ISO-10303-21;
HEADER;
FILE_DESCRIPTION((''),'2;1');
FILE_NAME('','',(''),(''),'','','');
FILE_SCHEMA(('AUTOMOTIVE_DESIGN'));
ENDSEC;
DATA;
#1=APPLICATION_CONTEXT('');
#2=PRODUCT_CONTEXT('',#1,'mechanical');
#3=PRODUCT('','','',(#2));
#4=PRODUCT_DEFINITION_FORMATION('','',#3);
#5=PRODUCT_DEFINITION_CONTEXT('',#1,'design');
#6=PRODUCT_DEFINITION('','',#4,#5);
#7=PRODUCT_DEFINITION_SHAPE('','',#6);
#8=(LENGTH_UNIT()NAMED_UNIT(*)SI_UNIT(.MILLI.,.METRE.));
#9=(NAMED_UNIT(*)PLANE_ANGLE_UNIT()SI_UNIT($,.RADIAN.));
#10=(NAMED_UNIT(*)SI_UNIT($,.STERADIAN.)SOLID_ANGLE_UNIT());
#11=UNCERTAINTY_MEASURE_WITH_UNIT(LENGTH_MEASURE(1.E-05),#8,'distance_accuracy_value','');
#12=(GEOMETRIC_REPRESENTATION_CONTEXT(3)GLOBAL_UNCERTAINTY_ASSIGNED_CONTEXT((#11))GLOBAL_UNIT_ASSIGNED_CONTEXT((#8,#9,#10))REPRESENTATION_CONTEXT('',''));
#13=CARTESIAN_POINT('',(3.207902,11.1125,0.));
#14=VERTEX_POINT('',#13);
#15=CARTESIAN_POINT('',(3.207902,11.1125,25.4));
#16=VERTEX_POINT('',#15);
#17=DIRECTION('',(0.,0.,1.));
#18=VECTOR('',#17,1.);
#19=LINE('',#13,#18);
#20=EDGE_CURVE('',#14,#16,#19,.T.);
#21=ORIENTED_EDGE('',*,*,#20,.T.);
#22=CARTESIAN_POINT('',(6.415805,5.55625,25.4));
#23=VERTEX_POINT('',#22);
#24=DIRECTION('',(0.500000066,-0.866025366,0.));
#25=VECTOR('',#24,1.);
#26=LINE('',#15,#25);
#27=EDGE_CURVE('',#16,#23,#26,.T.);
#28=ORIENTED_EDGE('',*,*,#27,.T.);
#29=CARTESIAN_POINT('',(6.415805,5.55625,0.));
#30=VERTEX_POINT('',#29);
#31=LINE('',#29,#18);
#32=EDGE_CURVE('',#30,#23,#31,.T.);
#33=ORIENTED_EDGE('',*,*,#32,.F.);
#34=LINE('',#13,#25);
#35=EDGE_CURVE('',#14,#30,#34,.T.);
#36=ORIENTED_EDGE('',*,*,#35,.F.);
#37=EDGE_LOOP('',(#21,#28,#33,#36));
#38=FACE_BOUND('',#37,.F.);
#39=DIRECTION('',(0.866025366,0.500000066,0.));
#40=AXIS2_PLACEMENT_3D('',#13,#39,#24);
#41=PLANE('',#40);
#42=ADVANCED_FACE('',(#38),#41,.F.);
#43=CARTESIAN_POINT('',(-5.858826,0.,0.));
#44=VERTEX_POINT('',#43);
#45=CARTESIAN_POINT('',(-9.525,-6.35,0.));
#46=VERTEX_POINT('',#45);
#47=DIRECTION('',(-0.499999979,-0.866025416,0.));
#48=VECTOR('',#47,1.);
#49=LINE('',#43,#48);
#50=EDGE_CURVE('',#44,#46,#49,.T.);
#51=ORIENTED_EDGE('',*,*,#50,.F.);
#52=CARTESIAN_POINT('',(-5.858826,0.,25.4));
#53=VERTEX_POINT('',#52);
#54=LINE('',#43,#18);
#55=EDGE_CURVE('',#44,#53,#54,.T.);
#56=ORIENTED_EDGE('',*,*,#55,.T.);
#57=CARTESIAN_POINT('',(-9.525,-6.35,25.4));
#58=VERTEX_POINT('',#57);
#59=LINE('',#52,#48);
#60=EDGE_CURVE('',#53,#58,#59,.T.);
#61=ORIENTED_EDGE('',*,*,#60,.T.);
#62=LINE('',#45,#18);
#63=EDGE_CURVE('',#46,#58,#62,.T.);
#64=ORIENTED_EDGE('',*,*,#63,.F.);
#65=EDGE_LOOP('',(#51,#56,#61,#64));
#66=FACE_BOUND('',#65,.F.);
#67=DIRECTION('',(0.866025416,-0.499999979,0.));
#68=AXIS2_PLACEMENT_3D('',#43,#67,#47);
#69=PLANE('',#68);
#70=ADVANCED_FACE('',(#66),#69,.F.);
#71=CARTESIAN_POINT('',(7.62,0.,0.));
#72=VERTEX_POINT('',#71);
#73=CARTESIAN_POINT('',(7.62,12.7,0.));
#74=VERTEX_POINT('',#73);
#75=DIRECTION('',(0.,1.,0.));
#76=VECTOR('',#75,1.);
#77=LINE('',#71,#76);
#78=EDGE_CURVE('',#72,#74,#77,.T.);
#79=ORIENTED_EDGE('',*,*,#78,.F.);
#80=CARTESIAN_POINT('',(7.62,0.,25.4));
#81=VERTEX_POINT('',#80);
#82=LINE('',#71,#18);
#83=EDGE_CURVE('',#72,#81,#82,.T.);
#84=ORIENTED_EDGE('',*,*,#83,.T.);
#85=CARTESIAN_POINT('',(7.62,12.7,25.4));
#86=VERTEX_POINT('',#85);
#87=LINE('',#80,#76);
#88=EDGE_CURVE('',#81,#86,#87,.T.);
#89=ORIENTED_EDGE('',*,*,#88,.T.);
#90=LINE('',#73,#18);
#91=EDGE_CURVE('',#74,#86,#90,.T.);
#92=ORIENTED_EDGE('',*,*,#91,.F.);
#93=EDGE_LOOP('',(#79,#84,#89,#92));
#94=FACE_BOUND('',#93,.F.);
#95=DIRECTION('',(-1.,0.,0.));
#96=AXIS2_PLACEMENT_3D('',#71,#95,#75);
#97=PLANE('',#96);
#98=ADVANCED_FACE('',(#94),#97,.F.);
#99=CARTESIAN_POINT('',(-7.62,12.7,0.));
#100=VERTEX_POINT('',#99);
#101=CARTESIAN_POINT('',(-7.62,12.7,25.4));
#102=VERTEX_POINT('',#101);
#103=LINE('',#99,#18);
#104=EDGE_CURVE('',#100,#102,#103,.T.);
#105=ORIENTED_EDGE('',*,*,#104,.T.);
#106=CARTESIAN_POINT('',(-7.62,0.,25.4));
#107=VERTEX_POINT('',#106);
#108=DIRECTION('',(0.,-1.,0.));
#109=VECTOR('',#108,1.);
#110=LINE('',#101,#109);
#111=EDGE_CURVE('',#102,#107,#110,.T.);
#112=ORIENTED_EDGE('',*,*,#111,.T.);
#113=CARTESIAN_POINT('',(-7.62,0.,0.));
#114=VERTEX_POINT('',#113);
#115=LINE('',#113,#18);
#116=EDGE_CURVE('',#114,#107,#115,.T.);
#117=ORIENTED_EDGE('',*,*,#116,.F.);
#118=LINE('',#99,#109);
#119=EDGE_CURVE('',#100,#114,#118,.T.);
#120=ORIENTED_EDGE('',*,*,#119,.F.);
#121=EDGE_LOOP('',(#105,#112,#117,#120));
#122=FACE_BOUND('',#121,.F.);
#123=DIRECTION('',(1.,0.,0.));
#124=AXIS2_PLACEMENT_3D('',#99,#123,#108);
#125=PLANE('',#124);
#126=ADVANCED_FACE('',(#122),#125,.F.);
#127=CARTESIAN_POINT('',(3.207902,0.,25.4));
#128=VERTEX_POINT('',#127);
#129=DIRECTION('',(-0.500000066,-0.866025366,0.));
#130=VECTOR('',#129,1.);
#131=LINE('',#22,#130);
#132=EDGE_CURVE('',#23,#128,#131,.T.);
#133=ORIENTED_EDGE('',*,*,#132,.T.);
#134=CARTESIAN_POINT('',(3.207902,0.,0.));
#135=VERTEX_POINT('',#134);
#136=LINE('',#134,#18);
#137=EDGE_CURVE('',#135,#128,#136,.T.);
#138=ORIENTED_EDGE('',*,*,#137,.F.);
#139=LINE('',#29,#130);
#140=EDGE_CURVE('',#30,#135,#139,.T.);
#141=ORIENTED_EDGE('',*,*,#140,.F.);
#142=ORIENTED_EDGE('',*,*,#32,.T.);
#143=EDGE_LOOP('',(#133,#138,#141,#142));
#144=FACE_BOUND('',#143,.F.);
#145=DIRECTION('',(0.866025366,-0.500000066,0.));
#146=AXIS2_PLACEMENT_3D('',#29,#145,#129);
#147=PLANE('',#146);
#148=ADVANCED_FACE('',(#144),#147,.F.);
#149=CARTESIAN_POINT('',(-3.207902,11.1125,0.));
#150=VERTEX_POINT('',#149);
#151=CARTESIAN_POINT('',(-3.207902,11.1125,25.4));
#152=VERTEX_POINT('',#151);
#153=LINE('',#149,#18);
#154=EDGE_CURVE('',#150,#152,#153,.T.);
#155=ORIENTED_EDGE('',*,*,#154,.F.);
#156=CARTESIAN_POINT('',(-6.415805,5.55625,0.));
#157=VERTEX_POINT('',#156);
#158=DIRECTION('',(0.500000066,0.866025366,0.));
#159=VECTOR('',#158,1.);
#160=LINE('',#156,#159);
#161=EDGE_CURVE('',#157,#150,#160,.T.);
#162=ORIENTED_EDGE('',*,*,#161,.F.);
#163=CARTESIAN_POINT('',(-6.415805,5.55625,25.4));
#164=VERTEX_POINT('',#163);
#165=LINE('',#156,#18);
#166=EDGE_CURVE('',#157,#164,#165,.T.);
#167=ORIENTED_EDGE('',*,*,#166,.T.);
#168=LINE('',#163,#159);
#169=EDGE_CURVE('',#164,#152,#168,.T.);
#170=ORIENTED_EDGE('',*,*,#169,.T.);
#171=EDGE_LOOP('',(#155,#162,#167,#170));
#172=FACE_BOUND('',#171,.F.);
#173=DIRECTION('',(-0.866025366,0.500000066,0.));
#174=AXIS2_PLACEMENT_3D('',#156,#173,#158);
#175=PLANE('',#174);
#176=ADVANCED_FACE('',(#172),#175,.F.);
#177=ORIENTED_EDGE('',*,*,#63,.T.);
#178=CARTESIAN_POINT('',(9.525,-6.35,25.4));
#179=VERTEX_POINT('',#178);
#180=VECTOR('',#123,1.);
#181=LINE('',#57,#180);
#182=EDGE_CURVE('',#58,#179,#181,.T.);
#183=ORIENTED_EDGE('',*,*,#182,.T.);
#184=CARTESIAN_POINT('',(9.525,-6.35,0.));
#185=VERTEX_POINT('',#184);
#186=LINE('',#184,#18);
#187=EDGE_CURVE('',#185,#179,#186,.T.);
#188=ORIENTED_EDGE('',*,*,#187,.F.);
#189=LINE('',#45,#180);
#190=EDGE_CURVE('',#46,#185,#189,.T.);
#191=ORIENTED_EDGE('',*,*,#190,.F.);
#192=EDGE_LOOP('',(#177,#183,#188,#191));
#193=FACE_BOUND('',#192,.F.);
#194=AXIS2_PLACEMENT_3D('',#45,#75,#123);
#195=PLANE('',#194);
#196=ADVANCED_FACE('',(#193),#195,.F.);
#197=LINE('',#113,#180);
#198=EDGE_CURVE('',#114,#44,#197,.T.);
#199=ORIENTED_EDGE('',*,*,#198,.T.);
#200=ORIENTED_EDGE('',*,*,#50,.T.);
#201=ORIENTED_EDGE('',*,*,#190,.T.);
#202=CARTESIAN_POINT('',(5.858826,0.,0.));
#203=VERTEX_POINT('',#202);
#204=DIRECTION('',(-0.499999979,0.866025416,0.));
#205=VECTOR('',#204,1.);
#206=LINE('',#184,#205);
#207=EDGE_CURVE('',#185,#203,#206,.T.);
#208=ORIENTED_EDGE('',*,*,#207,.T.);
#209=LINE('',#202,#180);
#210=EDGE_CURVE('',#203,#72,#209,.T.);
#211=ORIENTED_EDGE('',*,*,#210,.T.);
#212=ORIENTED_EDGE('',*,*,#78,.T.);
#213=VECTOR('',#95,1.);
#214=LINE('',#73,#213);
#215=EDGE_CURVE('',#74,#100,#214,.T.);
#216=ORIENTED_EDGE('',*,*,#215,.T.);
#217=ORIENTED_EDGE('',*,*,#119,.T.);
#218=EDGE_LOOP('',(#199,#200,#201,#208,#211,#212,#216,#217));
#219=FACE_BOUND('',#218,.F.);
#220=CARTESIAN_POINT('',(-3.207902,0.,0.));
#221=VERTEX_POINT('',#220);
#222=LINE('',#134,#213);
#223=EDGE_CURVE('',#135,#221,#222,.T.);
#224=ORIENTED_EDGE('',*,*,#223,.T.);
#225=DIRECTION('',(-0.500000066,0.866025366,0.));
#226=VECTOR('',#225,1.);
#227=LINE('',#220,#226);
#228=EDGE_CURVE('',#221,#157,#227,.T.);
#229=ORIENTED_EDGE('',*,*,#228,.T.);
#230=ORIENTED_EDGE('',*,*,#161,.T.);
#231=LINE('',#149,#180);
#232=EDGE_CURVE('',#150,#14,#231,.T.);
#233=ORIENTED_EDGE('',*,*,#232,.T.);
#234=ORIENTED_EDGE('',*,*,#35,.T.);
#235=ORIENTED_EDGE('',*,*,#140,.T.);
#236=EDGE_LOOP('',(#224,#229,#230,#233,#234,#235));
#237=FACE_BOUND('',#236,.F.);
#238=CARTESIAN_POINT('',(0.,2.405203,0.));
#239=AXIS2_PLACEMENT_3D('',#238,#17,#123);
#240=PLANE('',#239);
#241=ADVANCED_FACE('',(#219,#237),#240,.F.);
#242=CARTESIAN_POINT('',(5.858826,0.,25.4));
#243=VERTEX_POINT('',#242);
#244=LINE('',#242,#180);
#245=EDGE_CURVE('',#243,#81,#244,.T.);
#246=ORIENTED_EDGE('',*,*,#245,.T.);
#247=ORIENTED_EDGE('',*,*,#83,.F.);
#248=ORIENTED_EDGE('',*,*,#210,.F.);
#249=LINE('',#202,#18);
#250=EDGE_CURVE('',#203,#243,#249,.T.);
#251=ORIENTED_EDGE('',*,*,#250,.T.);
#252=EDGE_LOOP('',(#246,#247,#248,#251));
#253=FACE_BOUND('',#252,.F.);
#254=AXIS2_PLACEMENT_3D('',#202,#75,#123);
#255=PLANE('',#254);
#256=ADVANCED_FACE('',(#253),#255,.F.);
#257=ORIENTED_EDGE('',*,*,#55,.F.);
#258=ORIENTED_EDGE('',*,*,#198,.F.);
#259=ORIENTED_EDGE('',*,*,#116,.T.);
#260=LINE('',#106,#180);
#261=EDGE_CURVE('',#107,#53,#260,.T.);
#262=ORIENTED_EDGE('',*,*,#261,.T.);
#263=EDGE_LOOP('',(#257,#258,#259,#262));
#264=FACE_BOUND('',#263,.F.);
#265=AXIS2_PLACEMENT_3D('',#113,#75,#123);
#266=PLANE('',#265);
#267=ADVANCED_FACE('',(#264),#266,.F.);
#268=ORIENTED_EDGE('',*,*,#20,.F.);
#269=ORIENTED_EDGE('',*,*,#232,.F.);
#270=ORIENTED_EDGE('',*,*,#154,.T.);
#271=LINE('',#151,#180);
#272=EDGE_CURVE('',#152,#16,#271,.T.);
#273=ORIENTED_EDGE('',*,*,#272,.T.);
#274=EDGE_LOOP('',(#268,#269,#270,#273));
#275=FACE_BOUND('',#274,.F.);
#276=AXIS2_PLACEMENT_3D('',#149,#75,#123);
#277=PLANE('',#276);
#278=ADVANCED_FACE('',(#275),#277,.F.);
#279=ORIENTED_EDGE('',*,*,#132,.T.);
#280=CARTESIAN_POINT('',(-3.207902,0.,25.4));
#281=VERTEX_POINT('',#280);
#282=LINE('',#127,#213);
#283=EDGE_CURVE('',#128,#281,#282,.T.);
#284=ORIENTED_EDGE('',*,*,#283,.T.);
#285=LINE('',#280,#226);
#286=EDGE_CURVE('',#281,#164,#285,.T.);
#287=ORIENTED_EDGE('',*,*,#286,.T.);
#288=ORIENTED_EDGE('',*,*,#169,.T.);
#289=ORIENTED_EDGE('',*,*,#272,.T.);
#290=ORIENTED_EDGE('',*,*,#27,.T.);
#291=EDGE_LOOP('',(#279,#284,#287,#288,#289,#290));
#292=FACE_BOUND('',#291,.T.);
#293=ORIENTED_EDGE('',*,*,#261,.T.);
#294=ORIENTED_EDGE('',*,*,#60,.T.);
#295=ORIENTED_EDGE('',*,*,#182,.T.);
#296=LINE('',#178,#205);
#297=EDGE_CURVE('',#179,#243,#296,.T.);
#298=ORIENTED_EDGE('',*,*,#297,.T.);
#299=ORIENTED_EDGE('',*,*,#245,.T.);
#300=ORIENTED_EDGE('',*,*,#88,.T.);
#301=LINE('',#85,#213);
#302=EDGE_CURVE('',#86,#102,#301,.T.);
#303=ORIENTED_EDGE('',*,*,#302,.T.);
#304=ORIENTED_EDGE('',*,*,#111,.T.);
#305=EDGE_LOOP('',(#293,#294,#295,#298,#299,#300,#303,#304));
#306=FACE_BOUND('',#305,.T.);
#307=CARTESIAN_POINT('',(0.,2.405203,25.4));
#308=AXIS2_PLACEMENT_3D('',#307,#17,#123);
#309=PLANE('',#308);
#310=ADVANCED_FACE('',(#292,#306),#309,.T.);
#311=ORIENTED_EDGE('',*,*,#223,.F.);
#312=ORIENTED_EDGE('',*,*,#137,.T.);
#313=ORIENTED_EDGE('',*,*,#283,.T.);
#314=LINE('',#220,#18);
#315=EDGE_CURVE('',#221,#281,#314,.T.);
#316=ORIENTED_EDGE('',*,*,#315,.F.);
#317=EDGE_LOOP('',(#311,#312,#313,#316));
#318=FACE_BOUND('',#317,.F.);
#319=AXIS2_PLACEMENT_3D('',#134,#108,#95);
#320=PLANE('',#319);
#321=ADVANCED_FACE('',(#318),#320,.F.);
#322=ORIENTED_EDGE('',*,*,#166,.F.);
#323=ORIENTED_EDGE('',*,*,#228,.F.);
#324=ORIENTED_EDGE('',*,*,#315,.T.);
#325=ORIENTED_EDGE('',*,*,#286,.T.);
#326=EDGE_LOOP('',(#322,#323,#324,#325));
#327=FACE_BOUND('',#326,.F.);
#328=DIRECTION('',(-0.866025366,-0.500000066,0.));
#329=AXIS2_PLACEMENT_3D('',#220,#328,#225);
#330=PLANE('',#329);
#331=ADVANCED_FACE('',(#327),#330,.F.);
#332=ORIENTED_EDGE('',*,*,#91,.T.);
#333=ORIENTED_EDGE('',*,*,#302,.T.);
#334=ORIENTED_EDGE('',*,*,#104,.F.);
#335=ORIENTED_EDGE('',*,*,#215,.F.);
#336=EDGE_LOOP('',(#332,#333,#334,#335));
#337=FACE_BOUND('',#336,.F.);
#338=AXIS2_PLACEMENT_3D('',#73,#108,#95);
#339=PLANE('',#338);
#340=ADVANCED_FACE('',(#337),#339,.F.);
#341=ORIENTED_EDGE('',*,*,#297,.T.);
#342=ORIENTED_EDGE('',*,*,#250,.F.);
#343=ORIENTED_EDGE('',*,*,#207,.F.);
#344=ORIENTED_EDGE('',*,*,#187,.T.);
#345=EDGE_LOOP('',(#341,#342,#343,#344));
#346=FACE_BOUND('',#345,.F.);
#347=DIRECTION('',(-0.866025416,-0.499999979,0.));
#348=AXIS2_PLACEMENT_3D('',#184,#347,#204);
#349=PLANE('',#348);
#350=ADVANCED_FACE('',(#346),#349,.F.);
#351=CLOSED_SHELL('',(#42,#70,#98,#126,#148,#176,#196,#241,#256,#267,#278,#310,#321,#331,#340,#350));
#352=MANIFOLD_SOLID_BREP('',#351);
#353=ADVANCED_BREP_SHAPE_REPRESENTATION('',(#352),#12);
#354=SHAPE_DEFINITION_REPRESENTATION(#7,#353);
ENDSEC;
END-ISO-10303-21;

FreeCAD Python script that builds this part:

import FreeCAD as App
import Part
import Sketcher

V = App.Vector
Q = App.Units.Quantity


def add_polygon(sketch, points):
    """Adds a closed chain of lines whose ends are joined by coincident constraints."""
    first, n = sketch.GeometryCount, len(points)
    for a, b in zip(points, points[1:] + points[:1]):
        sketch.addGeometry(Part.LineSegment(App.Vector(*a, 0), App.Vector(*b, 0)), False)
    for i in range(n):
        sketch.addConstraint(Sketcher.Constraint("Coincident", first + i, 2, first + (i + 1) % n, 1))

doc = App.newDocument("Part")
body = doc.addObject("PartDesign::Body", "Body")

# Sketch on XY plane
sketch1 = doc.addObject("Sketcher::SketchObject", "Sketch")
body.addObject(sketch1)
sketch1.AttachmentSupport = (doc.XY_Plane, [""])
sketch1.MapMode = "FlatFace"
add_polygon(sketch1, [(-7.6, 12.7), (-7.6, 0), (-5.9, 0), (-9.5, -6.3), (9.5, -6.3), (5.9, 0), (7.6, 0), (7.6, 12.7)])  # lines 0-7
add_polygon(sketch1, [(3.2, 11.1), (6.4, 5.6), (3.2, 0), (-3.2, 0), (-6.4, 5.6), (-3.2, 11.1)])  # lines 8-13
sketch1.addConstraint(Sketcher.Constraint("Vertical", 0))
sketch1.addConstraint(Sketcher.Constraint("Horizontal", 1))
sketch1.addConstraint(Sketcher.Constraint("Horizontal", 3))
sketch1.addConstraint(Sketcher.Constraint("Horizontal", 5))
sketch1.addConstraint(Sketcher.Constraint("Vertical", 6))
sketch1.addConstraint(Sketcher.Constraint("Horizontal", 7))
sketch1.addConstraint(Sketcher.Constraint("Horizontal", 10))
sketch1.addConstraint(Sketcher.Constraint("Horizontal", 13))
sketch1.addConstraint(Sketcher.Constraint("Symmetric", 1, 2, 4, 2, -1, 1))
sketch1.addConstraint(Sketcher.Constraint("Symmetric", 9, 2, 10, 2, -1, 1))
sketch1.addConstraint(Sketcher.Constraint("Symmetric", 0, 2, 5, 2, -2))
sketch1.addConstraint(Sketcher.Constraint("Symmetric", 8, 2, 11, 2, -2))
sketch1.addConstraint(Sketcher.Constraint("Parallel", 4, 8))
sketch1.addConstraint(Sketcher.Constraint("Parallel", 2, 9))
sketch1.addConstraint(Sketcher.Constraint("Parallel", 8, 11))
sketch1.addConstraint(Sketcher.Constraint("Parallel", 9, 12))
sketch1.addConstraint(Sketcher.Constraint("Vertical", 10, 2, 12, 2))
sketch1.addConstraint(Sketcher.Constraint("DistanceX", 7, 2, 7, 1, Q("0.6 in")))
sketch1.addConstraint(Sketcher.Constraint("DistanceY", 0, 2, 0, 1, Q("0.5 in")))
sketch1.addConstraint(Sketcher.Constraint("Angle", 2, Q("-119.999999 deg")))
sketch1.addConstraint(Sketcher.Constraint("DistanceX", 3, 1, 3, 2, Q("0.75 in")))
sketch1.addConstraint(Sketcher.Constraint("DistanceY", 2, 2, -1, 1, Q("0.25 in")))
sketch1.addConstraint(Sketcher.Constraint("DistanceY", -1, 1, 8, 2, Q("0.21875 in")))
sketch1.addConstraint(Sketcher.Constraint("DistanceX", -1, 1, 9, 2, 3.207902))
pad1 = doc.addObject("PartDesign::Pad", "Pad")
body.addObject(pad1)
pad1.Profile = sketch1
pad1.Length = Q("1 in")

doc.recompute()
